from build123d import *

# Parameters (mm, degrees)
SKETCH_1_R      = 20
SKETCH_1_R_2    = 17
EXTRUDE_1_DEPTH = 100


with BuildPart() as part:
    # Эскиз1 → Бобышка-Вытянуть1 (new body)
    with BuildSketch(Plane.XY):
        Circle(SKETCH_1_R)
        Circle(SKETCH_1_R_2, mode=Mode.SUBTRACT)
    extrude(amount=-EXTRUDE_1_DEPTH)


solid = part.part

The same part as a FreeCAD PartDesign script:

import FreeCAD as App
import Part
import Sketcher

doc = App.newDocument("Part")
params = doc.addObject("Spreadsheet::Sheet", "Params")
for row, (alias, value) in enumerate([
    ("sketch1_diameter", "40 mm"),
    ("sketch1_diameter2", "34 mm"),
    ("pad1_length", "100 mm"),
], start=1):
    params.set(f"A{row}", alias)
    params.set(f"B{row}", "=" + value)
    params.setAlias(f"B{row}", alias)

body = doc.addObject("PartDesign::Body", "Body")

# Sketch on XY plane
sketch1 = body.newObject("Sketcher::SketchObject", "Sketch")
sketch1.AttachmentSupport = (doc.getObject("XY_Plane"), [""])
sketch1.MapMode = "FlatFace"
sketch1.addGeometry(Part.Circle(App.Vector(0, 0, 0), App.Vector(0, 0, 1), 20), False)
sketch1.addGeometry(Part.Circle(App.Vector(0, 0, 0), App.Vector(0, 0, 1), 17), False)
sketch1.addConstraint(Sketcher.Constraint("Coincident", 0, 3, -1, 1))
sketch1.addConstraint(Sketcher.Constraint("Coincident", 1, 3, -1, 1))
sketch1.addConstraint(Sketcher.Constraint("Diameter", 0, 40.0))
sketch1.addConstraint(Sketcher.Constraint("Diameter", 1, 34.0))
sketch1.setExpression("Constraints[2]", "Params.sketch1_diameter")
sketch1.setExpression("Constraints[3]", "Params.sketch1_diameter2")
pad1 = body.newObject("PartDesign::Pad", "Pad")
pad1.Profile = sketch1
pad1.setExpression("Length", "Params.pad1_length")
pad1.Reversed = True

doc.recompute()
